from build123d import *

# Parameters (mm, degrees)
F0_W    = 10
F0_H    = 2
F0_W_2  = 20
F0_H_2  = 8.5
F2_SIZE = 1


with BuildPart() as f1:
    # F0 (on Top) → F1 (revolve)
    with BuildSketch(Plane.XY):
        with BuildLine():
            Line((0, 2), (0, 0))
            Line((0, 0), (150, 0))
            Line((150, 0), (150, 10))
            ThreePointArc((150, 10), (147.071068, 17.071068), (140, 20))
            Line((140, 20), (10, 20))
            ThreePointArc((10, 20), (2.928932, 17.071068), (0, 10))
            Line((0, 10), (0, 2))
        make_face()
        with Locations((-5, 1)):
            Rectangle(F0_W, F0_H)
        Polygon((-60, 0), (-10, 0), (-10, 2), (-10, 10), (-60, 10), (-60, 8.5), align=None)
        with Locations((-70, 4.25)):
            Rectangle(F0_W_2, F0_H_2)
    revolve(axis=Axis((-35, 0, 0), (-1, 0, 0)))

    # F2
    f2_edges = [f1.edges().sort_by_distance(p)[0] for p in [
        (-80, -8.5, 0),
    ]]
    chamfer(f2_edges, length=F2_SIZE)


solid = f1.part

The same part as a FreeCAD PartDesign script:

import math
import FreeCAD as App
import Part
import Sketcher
Q = App.Units.Quantity


def edges_at(feature, points):
    """Names of the edges that pass closest to the given points."""
    edges = feature.Shape.Edges
    near = lambda p: min(range(len(edges)), key=lambda i: edges[i].distToShape(Part.Vertex(*p))[0])
    return sorted({f"Edge{near(p) + 1}" for p in points})

doc = App.newDocument("Part")
body = doc.addObject("PartDesign::Body", "Body")

# Sketch on XY plane
sketch1 = body.newObject("Sketcher::SketchObject", "Sketch")
sketch1.AttachmentSupport = (doc.getObject("XY_Plane"), [""])
sketch1.MapMode = "FlatFace"
sketch1.addGeometry([
    Part.LineSegment(App.Vector(150, 0, 0), App.Vector(150, 10, 0)),  # 0
    Part.ArcOfCircle(Part.Circle(App.Vector(140, 10, 0), App.Vector(0, 0, 1), 10), math.radians(0), math.radians(90)),  # 1
    Part.LineSegment(App.Vector(140, 20, 0), App.Vector(10, 20, 0)),  # 2
    Part.ArcOfCircle(Part.Circle(App.Vector(10, 10, 0), App.Vector(0, 0, 1), 10), math.radians(90), math.radians(180)),  # 3
    Part.LineSegment(App.Vector(0, 10, 0), App.Vector(0, 2, 0)),  # 4
    Part.LineSegment(App.Vector(0, 2, 0), App.Vector(-10, 2, 0)),  # 5
    Part.LineSegment(App.Vector(-10, 2, 0), App.Vector(-10, 10, 0)),  # 6
    Part.LineSegment(App.Vector(-10, 10, 0), App.Vector(-60, 10, 0)),  # 7
    Part.LineSegment(App.Vector(-60, 10, 0), App.Vector(-60, 8.5, 0)),  # 8
    Part.LineSegment(App.Vector(-60, 8.5, 0), App.Vector(-80, 8.5, 0)),  # 9
    Part.LineSegment(App.Vector(-80, 8.5, 0), App.Vector(-80, 0, 0)),  # 10
    Part.LineSegment(App.Vector(-80, 0, 0), App.Vector(150, 0, 0)),  # 11
], False)
sketch1.addConstraint([
    Sketcher.Constraint("Tangent", 0, 2, 1, 1),
    Sketcher.Constraint("Tangent", 1, 2, 2, 1),
    Sketcher.Constraint("Tangent", 2, 2, 3, 1),
    Sketcher.Constraint("Tangent", 3, 2, 4, 1),
    Sketcher.Constraint("Coincident", 4, 2, 5, 1),
    Sketcher.Constraint("Coincident", 5, 2, 6, 1),
    Sketcher.Constraint("Coincident", 6, 2, 7, 1),
    Sketcher.Constraint("Coincident", 7, 2, 8, 1),
    Sketcher.Constraint("Coincident", 8, 2, 9, 1),
    Sketcher.Constraint("Coincident", 9, 2, 10, 1),
    Sketcher.Constraint("Coincident", 10, 2, 11, 1),
    Sketcher.Constraint("Coincident", 11, 2, 0, 1),
    Sketcher.Constraint("Vertical", 0),
    Sketcher.Constraint("Horizontal", 2),
    Sketcher.Constraint("Vertical", 4),
    Sketcher.Constraint("Horizontal", 5),
    Sketcher.Constraint("Vertical", 6),
    Sketcher.Constraint("Horizontal", 7),
    Sketcher.Constraint("Vertical", 8),
    Sketcher.Constraint("Horizontal", 9),
    Sketcher.Constraint("Vertical", 10),
    Sketcher.Constraint("Horizontal", 11),
    Sketcher.Constraint("Equal", 1, 3),
    Sketcher.Constraint("PointOnObject", 3, 2, -2),
    Sketcher.Constraint("PointOnObject", 10, 2, -1),
    Sketcher.Constraint("Horizontal", 3, 2, 6, 2),
    Sketcher.Constraint("Equal", 5, 0),
    Sketcher.Constraint("Radius", 1, Q("9.999999 mm")),
    Sketcher.Constraint("DistanceX", 2, 2, 2, 1, Q("130 mm")),
    Sketcher.Constraint("DistanceX", 5, 2, 5, 1, Q("10 mm")),
    Sketcher.Constraint("DistanceX", 7, 2, 7, 1, Q("50 mm")),
    Sketcher.Constraint("DistanceX", 9, 2, 9, 1, Q("20 mm")),
    Sketcher.Constraint("DistanceY", 4, 2, 4, 1, Q("8 mm")),
    Sketcher.Constraint("DistanceY", 8, 2, 8, 1, Q("1.5 mm")),
])
revolution = body.newObject("PartDesign::Revolution", "Revolution")
revolution.Profile = sketch1
revolution.ReferenceAxis = (sketch1, ["H_Axis"])
revolution.Angle = 360
doc.recompute()

chamfer = body.newObject("PartDesign::Chamfer", "Chamfer")
chamfer.Base = (revolution, edges_at(revolution, [(-80, -8.5, 0)]))
chamfer.Size = 1

doc.recompute()
